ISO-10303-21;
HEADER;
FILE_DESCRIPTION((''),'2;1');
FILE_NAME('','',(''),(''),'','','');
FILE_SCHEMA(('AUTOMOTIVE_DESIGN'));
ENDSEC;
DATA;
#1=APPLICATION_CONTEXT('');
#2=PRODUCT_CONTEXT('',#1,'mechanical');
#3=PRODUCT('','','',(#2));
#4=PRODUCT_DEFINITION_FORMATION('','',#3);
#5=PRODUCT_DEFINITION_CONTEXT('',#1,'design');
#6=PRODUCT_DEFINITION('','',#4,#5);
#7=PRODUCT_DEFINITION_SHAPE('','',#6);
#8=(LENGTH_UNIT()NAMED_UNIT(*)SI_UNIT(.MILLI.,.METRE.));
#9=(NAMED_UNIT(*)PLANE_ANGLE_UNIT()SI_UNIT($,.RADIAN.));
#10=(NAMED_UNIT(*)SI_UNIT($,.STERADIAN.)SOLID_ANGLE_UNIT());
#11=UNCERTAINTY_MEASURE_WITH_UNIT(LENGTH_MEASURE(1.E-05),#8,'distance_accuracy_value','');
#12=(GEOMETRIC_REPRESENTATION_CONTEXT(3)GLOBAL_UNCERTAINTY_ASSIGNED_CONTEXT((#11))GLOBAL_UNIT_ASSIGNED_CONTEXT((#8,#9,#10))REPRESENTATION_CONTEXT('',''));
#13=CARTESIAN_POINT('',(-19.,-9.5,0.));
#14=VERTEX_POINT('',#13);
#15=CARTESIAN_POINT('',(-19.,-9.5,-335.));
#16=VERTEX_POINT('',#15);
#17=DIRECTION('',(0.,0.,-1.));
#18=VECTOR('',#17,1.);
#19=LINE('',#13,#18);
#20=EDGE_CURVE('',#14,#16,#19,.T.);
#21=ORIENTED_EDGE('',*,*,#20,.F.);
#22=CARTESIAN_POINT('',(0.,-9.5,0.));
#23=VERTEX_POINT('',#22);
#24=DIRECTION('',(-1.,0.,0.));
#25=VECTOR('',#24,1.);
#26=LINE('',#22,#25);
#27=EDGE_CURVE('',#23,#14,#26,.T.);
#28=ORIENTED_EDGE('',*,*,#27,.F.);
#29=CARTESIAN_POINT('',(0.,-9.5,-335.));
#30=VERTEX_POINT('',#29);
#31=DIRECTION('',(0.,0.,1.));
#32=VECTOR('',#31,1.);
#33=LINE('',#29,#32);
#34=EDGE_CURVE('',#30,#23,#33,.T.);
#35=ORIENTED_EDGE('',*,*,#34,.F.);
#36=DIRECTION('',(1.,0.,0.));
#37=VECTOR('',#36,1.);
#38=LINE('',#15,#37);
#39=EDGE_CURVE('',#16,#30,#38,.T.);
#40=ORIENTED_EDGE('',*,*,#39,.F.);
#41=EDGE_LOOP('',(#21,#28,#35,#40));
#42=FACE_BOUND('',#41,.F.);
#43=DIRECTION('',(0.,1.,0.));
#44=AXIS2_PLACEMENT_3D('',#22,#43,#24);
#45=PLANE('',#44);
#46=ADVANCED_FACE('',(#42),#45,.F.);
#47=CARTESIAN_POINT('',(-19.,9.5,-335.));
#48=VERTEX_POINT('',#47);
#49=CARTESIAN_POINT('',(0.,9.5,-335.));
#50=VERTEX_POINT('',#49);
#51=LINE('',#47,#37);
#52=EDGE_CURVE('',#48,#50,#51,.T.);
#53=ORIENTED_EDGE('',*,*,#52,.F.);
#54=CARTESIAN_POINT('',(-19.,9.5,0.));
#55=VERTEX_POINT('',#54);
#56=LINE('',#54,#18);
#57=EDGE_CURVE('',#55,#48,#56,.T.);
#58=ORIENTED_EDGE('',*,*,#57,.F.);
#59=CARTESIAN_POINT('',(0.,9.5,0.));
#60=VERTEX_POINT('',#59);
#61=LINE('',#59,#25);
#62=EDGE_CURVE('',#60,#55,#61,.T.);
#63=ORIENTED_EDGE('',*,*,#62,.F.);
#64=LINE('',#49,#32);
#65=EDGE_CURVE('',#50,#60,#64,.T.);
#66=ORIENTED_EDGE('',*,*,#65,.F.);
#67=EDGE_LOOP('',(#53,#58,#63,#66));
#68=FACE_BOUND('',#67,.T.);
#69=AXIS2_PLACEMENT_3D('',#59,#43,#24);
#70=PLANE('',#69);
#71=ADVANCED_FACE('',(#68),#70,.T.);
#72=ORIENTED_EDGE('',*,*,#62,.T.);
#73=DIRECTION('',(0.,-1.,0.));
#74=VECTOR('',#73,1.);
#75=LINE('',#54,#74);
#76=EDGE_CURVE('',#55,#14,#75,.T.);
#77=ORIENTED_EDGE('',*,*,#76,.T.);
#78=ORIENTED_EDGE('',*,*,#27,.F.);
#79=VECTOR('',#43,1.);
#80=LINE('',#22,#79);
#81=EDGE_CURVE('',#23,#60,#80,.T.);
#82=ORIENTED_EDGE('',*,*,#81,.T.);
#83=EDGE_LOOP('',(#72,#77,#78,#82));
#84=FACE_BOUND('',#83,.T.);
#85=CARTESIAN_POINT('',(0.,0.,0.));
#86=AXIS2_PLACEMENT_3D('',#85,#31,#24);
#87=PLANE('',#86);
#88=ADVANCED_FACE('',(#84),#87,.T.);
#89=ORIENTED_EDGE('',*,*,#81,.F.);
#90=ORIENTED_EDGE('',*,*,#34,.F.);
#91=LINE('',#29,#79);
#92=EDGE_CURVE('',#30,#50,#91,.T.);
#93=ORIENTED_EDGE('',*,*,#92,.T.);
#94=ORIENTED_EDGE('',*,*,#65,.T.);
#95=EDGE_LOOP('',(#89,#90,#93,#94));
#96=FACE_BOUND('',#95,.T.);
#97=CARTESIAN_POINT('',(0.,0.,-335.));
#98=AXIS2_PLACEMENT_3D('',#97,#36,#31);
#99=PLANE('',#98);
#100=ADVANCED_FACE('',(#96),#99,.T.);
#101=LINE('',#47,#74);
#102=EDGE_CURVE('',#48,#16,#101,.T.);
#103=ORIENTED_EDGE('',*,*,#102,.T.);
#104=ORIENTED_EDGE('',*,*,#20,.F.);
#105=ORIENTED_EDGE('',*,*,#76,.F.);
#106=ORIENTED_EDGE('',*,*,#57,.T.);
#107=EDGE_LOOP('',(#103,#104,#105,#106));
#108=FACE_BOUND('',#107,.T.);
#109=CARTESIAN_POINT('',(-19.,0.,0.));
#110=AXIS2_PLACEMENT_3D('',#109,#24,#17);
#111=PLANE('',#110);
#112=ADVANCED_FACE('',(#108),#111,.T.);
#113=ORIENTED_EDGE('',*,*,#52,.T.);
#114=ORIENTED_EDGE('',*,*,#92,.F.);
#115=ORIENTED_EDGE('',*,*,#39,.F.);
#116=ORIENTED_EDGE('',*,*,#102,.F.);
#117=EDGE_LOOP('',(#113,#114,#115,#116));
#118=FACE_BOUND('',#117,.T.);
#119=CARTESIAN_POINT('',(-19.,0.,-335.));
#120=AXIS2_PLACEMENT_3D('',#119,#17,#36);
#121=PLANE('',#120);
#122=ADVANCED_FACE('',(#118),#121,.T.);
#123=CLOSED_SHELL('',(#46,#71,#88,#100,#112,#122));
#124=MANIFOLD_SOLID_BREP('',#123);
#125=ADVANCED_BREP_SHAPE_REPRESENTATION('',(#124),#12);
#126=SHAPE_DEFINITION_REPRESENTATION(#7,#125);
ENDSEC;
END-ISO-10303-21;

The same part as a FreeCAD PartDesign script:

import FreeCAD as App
import Part
import Sketcher

V = App.Vector
Q = App.Units.Quantity


def add_polygon(sketch, points):
    """Adds a closed chain of lines whose ends are joined by coincident constraints."""
    first, n = sketch.GeometryCount, len(points)
    for a, b in zip(points, points[1:] + points[:1]):
        sketch.addGeometry(Part.LineSegment(App.Vector(*a, 0), App.Vector(*b, 0)), False)
    for i in range(n):
        sketch.addConstraint(Sketcher.Constraint("Coincident", first + i, 2, first + (i + 1) % n, 1))

doc = App.newDocument("Part")
params = doc.addObject("Spreadsheet::Sheet", "Params")
for row, (alias, value) in enumerate([
    ("sketch1_width", "19 mm"),
    ("sketch1_height", "335 mm"),
    ("pad1_length", "19 mm"),
], start=1):
    params.set(f"A{row}", alias)
    params.set(f"B{row}", "=" + value)
    params.setAlias(f"B{row}", alias)

body = doc.addObject("PartDesign::Body", "Body")

# Sketch on XZ plane
sketch1 = body.newObject("Sketcher::SketchObject", "Sketch")
sketch1.AttachmentSupport = (doc.getObject("XZ_Plane"), [""])
sketch1.MapMode = "FlatFace"
add_polygon(sketch1, [(-19, 0), (0, 0), (0, -335), (-19, -335)])  # lines 0-3
sketch1.addConstraint([
    Sketcher.Constraint("Horizontal", 0),
    Sketcher.Constraint("Vertical", 1),
    Sketcher.Constraint("Horizontal", 2),
    Sketcher.Constraint("Vertical", 3),
    Sketcher.Constraint("Coincident", 0, 2, -1, 1),
    Sketcher.Constraint("DistanceX", 0, 1, 0, 2, Q("19 mm")),
    Sketcher.Constraint("DistanceY", 1, 2, 1, 1, Q("335 mm")),
])
sketch1.setExpression("Constraints[9]", "Params.sketch1_width")
sketch1.setExpression("Constraints[10]", "Params.sketch1_height")
pad1 = body.newObject("PartDesign::Pad", "Pad")
pad1.Profile = sketch1
pad1.setExpression("Length", "Params.pad1_length")
pad1.Midplane = True

doc.recompute()
